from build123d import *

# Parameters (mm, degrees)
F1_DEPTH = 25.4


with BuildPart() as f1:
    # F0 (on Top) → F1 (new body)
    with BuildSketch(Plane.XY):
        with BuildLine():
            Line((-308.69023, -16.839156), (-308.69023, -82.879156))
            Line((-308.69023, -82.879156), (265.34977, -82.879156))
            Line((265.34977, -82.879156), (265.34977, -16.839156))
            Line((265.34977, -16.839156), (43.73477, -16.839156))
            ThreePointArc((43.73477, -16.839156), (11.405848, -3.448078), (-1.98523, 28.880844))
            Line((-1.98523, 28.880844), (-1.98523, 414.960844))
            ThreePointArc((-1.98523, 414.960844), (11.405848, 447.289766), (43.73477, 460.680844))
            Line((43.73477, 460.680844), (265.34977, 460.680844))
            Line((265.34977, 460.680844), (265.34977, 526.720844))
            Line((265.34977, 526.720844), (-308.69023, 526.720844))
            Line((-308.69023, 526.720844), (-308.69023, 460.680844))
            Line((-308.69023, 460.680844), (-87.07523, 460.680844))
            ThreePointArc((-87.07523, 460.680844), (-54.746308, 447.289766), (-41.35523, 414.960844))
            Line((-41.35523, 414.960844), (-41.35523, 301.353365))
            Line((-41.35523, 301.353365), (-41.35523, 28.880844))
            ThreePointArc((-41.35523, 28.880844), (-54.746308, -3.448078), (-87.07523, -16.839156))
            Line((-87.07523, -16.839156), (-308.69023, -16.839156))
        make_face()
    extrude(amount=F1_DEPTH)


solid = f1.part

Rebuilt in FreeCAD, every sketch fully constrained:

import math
import FreeCAD as App
import Part
import Sketcher

V = App.Vector
Q = App.Units.Quantity

doc = App.newDocument("Part")
params = doc.addObject("Spreadsheet::Sheet", "Params")
for row, (alias, value) in enumerate([
    ("sketch1_radius", "1.8 in"),
    ("sketch1_width", "22.6 in"),
    ("sketch1_height", "2.6 in"),
    ("sketch1_height2", "15.2 in"),
    ("sketch1_width2", "8.725 in"),
    ("pad1_length", "1 in"),
], start=1):
    params.set(f"A{row}", alias)
    params.set(f"B{row}", "=" + value)
    params.setAlias(f"B{row}", alias)

body = doc.addObject("PartDesign::Body", "Body")

sketch1 = body.newObject("Sketcher::SketchObject", "Sketch")
sketch1.AttachmentSupport = (doc.getObject("XY_Plane"), [""])
sketch1.MapMode = "FlatFace"
sketch1.addGeometry(Part.LineSegment(V(-309, -17, 0), V(-309, -83, 0)), False)
sketch1.addGeometry(Part.LineSegment(V(-309, -83, 0), V(265, -83, 0)), False)
sketch1.addGeometry(Part.LineSegment(V(265, -83, 0), V(265, -17, 0)), False)
sketch1.addGeometry(Part.LineSegment(V(265, -17, 0), V(44, -17, 0)), False)
sketch1.addGeometry(Part.ArcOfCircle(Part.Circle(V(44, 29, 0), V(0, 0, 1), 46), math.radians(-180), math.radians(-90)), False)
sketch1.addGeometry(Part.LineSegment(V(-2, 29, 0), V(-2, 415, 0)), False)
sketch1.addGeometry(Part.ArcOfCircle(Part.Circle(V(44, 415, 0), V(0, 0, 1), 46), math.radians(90), math.radians(180)), False)
sketch1.addGeometry(Part.LineSegment(V(44, 461, 0), V(265, 461, 0)), False)
sketch1.addGeometry(Part.LineSegment(V(265, 461, 0), V(265, 527, 0)), False)
sketch1.addGeometry(Part.LineSegment(V(265, 527, 0), V(-309, 527, 0)), False)
sketch1.addGeometry(Part.LineSegment(V(-309, 527, 0), V(-309, 461, 0)), False)
sketch1.addGeometry(Part.LineSegment(V(-309, 461, 0), V(-87, 461, 0)), False)
sketch1.addGeometry(Part.ArcOfCircle(Part.Circle(V(-87, 415, 0), V(0, 0, 1), 46), math.radians(0), math.radians(90)), False)
sketch1.addGeometry(Part.LineSegment(V(-41, 415, 0), V(-41, 29, 0)), False)
sketch1.addGeometry(Part.ArcOfCircle(Part.Circle(V(-87, 29, 0), V(0, 0, 1), 46), math.radians(-90), math.radians(0)), False)
sketch1.addGeometry(Part.LineSegment(V(-87, -17, 0), V(-309, -17, 0)), False)
sketch1.addConstraint(Sketcher.Constraint("Coincident", 0, 2, 1, 1))
sketch1.addConstraint(Sketcher.Constraint("Coincident", 1, 2, 2, 1))
sketch1.addConstraint(Sketcher.Constraint("Coincident", 2, 2, 3, 1))
sketch1.addConstraint(Sketcher.Constraint("Tangent", 3, 2, 4, 2))
sketch1.addConstraint(Sketcher.Constraint("Tangent", 4, 1, 5, 1))
sketch1.addConstraint(Sketcher.Constraint("Tangent", 5, 2, 6, 2))
sketch1.addConstraint(Sketcher.Constraint("Tangent", 6, 1, 7, 1))
sketch1.addConstraint(Sketcher.Constraint("Coincident", 7, 2, 8, 1))
sketch1.addConstraint(Sketcher.Constraint("Coincident", 8, 2, 9, 1))
sketch1.addConstraint(Sketcher.Constraint("Coincident", 9, 2, 10, 1))
sketch1.addConstraint(Sketcher.Constraint("Coincident", 10, 2, 11, 1))
sketch1.addConstraint(Sketcher.Constraint("Tangent", 11, 2, 12, 2))
sketch1.addConstraint(Sketcher.Constraint("Tangent", 12, 1, 13, 1))
sketch1.addConstraint(Sketcher.Constraint("Tangent", 13, 2, 14, 2))
sketch1.addConstraint(Sketcher.Constraint("Tangent", 14, 1, 15, 1))
sketch1.addConstraint(Sketcher.Constraint("Coincident", 15, 2, 0, 1))
sketch1.addConstraint(Sketcher.Constraint("Vertical", 0))
sketch1.addConstraint(Sketcher.Constraint("Horizontal", 1))
sketch1.addConstraint(Sketcher.Constraint("Vertical", 2))
sketch1.addConstraint(Sketcher.Constraint("Horizontal", 3))
sketch1.addConstraint(Sketcher.Constraint("Vertical", 5))
sketch1.addConstraint(Sketcher.Constraint("Horizontal", 7))
sketch1.addConstraint(Sketcher.Constraint("Vertical", 8))
sketch1.addConstraint(Sketcher.Constraint("Horizontal", 9))
sketch1.addConstraint(Sketcher.Constraint("Vertical", 10))
sketch1.addConstraint(Sketcher.Constraint("Horizontal", 11))
sketch1.addConstraint(Sketcher.Constraint("Vertical", 13))
sketch1.addConstraint(Sketcher.Constraint("Horizontal", 15))
sketch1.addConstraint(Sketcher.Constraint("Equal", 4, 6))
sketch1.addConstraint(Sketcher.Constraint("Equal", 6, 12))
sketch1.addConstraint(Sketcher.Constraint("Equal", 12, 14))
sketch1.addConstraint(Sketcher.Constraint("Horizontal", 6, 3, 12, 3))
sketch1.addConstraint(Sketcher.Constraint("Horizontal", 4, 3, 14, 3))
sketch1.addConstraint(Sketcher.Constraint("Vertical", 2, 2, 7, 2))
sketch1.addConstraint(Sketcher.Constraint("Vertical", 0, 2, 9, 2))
sketch1.addConstraint(Sketcher.Constraint("Equal", 7, 11))
sketch1.addConstraint(Sketcher.Constraint("Equal", 2, 8))
sketch1.addConstraint(Sketcher.Constraint("Radius", 4, Q("1.8 in")))
sketch1.addConstraint(Sketcher.Constraint("DistanceX", 1, 1, 1, 2, Q("22.6 in")))
sketch1.addConstraint(Sketcher.Constraint("DistanceY", 0, 2, 0, 1, Q("2.6 in")))
sketch1.addConstraint(Sketcher.Constraint("DistanceY", 5, 1, 5, 2, Q("15.2 in")))
sketch1.addConstraint(Sketcher.Constraint("DistanceX", 3, 2, 3, 1, Q("8.725 in")))
sketch1.addConstraint(Sketcher.Constraint("DistanceX", -1, 1, 4, 3, 43.73477))
sketch1.addConstraint(Sketcher.Constraint("DistanceY", -1, 1, 4, 3, 28.880844))
sketch1.setExpression("Constraints[37]", "Params.sketch1_radius")
sketch1.setExpression("Constraints[38]", "Params.sketch1_width")
sketch1.setExpression("Constraints[39]", "Params.sketch1_height")
sketch1.setExpression("Constraints[40]", "Params.sketch1_height2")
sketch1.setExpression("Constraints[41]", "Params.sketch1_width2")
pad1 = body.newObject("PartDesign::Pad", "Pad")
pad1.Profile = sketch1
pad1.setExpression("Length", "Params.pad1_length")

doc.recompute()
